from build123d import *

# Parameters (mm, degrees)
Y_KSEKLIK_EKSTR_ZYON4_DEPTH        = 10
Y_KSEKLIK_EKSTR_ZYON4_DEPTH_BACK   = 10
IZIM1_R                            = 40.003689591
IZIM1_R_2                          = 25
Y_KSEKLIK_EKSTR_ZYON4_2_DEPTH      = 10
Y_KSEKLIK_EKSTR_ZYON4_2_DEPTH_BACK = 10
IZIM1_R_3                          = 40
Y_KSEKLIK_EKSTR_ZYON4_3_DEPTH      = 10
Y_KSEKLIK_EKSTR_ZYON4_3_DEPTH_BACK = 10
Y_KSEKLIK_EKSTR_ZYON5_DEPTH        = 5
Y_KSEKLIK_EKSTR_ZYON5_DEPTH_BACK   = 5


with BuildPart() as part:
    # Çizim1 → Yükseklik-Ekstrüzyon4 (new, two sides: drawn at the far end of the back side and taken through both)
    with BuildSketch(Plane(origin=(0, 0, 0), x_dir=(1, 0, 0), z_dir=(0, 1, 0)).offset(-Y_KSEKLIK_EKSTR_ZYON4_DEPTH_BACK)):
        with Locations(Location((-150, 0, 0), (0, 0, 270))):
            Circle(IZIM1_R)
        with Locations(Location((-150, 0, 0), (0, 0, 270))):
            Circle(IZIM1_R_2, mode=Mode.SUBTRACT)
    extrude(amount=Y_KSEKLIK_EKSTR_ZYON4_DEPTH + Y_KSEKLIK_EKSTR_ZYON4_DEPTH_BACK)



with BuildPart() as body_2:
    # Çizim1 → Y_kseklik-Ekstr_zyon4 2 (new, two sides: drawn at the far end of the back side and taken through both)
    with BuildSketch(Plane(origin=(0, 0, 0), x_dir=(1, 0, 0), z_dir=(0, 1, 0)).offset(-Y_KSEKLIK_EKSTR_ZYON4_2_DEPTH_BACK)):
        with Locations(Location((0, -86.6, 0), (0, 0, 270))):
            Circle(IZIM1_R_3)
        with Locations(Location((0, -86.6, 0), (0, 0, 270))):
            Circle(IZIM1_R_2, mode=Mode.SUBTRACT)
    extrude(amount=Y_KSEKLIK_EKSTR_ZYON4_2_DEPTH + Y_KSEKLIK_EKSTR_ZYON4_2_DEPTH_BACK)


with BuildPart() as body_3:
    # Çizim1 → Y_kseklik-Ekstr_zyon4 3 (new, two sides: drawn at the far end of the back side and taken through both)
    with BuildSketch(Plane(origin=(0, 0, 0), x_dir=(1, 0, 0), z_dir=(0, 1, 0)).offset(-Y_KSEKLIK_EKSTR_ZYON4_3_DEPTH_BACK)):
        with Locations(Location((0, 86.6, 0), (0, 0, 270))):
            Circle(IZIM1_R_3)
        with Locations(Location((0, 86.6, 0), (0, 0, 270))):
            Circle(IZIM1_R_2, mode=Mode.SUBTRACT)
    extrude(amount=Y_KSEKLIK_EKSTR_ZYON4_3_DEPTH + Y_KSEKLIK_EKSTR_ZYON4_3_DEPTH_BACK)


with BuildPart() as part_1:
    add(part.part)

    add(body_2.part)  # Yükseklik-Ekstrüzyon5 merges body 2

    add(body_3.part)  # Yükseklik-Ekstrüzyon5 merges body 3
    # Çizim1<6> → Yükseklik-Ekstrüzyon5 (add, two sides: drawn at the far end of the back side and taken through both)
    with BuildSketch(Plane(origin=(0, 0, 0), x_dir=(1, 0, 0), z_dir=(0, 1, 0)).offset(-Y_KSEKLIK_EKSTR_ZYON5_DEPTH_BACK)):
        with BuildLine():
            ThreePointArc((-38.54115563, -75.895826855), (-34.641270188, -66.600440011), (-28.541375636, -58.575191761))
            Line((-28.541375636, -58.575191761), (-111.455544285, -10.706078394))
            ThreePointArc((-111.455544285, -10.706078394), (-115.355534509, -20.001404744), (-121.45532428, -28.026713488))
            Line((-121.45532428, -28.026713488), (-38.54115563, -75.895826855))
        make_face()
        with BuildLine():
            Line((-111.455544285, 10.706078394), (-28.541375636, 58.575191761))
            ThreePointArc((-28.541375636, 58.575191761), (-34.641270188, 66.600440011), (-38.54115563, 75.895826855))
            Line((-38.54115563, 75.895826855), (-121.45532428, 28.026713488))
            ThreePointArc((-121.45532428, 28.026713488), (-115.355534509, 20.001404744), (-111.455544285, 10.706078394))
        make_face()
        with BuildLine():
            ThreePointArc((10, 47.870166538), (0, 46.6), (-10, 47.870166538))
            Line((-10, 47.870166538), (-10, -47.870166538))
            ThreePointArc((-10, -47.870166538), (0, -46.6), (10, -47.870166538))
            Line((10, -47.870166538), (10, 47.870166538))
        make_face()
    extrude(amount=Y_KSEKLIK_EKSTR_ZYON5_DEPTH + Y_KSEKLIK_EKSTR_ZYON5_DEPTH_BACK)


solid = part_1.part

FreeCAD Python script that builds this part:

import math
import FreeCAD as App
import Part
import Sketcher

doc = App.newDocument("Part")
body = doc.addObject("PartDesign::Body", "Body")

# Sketch on XZ plane
sketch1 = doc.addObject("Sketcher::SketchObject", "Sketch")
body.addObject(sketch1)
sketch1.AttachmentSupport = (doc.XZ_Plane, [""])
sketch1.MapMode = "FlatFace"
sketch1.addGeometry([
    Part.Circle(App.Vector(-150, 0, 0), App.Vector(0, 0, 1), 40),
    Part.Circle(App.Vector(-150, 0, 0), App.Vector(0, 0, 1), 25),
], False)
sketch1.addConstraint([
    Sketcher.Constraint("Coincident", 1, 3, 0, 3),
    Sketcher.Constraint("PointOnObject", 0, 3, -1),
    Sketcher.Constraint("Diameter", 1, 50.0),
    Sketcher.Constraint("DistanceX", 0, 3, -1, 1, 150.0),
    Sketcher.Constraint("Diameter", 0, 80.007379),
])
pad1 = doc.addObject("PartDesign::Pad", "Pad")
body.addObject(pad1)
pad1.Profile = sketch1
pad1.Type = "TwoLengths"
pad1.Length = 10
pad1.Length2 = 10
pad1.Reversed = True
body2 = doc.addObject("PartDesign::Body", "Body001")

# Sketch on XZ plane
sketch2 = doc.addObject("Sketcher::SketchObject", "Sketch001")
body2.addObject(sketch2)
sketch2.AttachmentSupport = (doc.getObject("XZ_Plane001"), [""])
sketch2.MapMode = "FlatFace"
sketch2.addGeometry([
    Part.Circle(App.Vector(0, 87, 0), App.Vector(0, 0, 1), 40),
    Part.Circle(App.Vector(0, 87, 0), App.Vector(0, 0, 1), 25),
], False)
sketch2.addConstraint([
    Sketcher.Constraint("Coincident", 1, 3, 0, 3),
    Sketcher.Constraint("PointOnObject", 0, 3, -2),
    Sketcher.Constraint("Diameter", 0, 80.0),
    Sketcher.Constraint("Diameter", 1, 50.0),
    Sketcher.Constraint("DistanceY", -1, 1, 0, 3, 86.6),
])
pad2 = doc.addObject("PartDesign::Pad", "Pad001")
body2.addObject(pad2)
pad2.Profile = sketch2
pad2.Type = "TwoLengths"
pad2.Length = 10
pad2.Length2 = 10
pad2.Reversed = True
body3 = doc.addObject("PartDesign::Body", "Body002")

# Sketch on XZ plane
sketch3 = doc.addObject("Sketcher::SketchObject", "Sketch002")
body3.addObject(sketch3)
sketch3.AttachmentSupport = (doc.getObject("XZ_Plane002"), [""])
sketch3.MapMode = "FlatFace"
sketch3.addGeometry([
    Part.Circle(App.Vector(0, -87, 0), App.Vector(0, 0, 1), 40),
    Part.Circle(App.Vector(0, -87, 0), App.Vector(0, 0, 1), 25),
], False)
sketch3.addConstraint([
    Sketcher.Constraint("Coincident", 1, 3, 0, 3),
    Sketcher.Constraint("PointOnObject", 0, 3, -2),
    Sketcher.Constraint("Diameter", 0, 80.0),
    Sketcher.Constraint("Diameter", 1, 50.0),
    Sketcher.Constraint("DistanceY", 0, 3, -1, 1, 86.6),
])
pad3 = doc.addObject("PartDesign::Pad", "Pad002")
body3.addObject(pad3)
pad3.Profile = sketch3
pad3.Type = "TwoLengths"
pad3.Length = 10
pad3.Length2 = 10
pad3.Reversed = True
body.AllowCompound = True
doc.recompute()

boolean = doc.addObject("PartDesign::Boolean", "Boolean")
body.addObject(boolean)
boolean.Type = "Fuse"
boolean.addObjects([body2])
doc.recompute()

boolean2 = doc.addObject("PartDesign::Boolean", "Boolean001")
body.addObject(boolean2)
boolean2.Type = "Fuse"
boolean2.addObjects([body3])

# Sketch on XZ plane
sketch4 = doc.addObject("Sketcher::SketchObject", "Sketch003")
body.addObject(sketch4)
sketch4.AttachmentSupport = (doc.XZ_Plane, [""])
sketch4.MapMode = "FlatFace"
sketch4.addGeometry([
    Part.ArcOfCircle(Part.Circle(App.Vector(0, 87, 0), App.Vector(0, 0, 1), 40), math.radians(-164), math.radians(-136)),  # 0
    Part.LineSegment(App.Vector(-29, 59, 0), App.Vector(-111, 11, 0)),  # 1
    Part.ArcOfCircle(Part.Circle(App.Vector(-150, 0, 0), App.Vector(0, 0, 1), 40), math.radians(16), math.radians(44)),  # 2
    Part.LineSegment(App.Vector(-121, 28, 0), App.Vector(-39, 76, 0)),  # 3
    Part.LineSegment(App.Vector(-111, -11, 0), App.Vector(-29, -59, 0)),  # 4
    Part.ArcOfCircle(Part.Circle(App.Vector(0, -87, 0), App.Vector(0, 0, 1), 40), math.radians(136), math.radians(164)),  # 5
    Part.LineSegment(App.Vector(-39, -76, 0), App.Vector(-121, -28, 0)),  # 6
    Part.ArcOfCircle(Part.Circle(App.Vector(-150, 0, 0), App.Vector(0, 0, 1), 40), math.radians(-44), math.radians(-16)),  # 7
    Part.ArcOfCircle(Part.Circle(App.Vector(0, -87, 0), App.Vector(0, 0, 1), 40), math.radians(76), math.radians(104)),  # 8
    Part.LineSegment(App.Vector(-10, -48, 0), App.Vector(-10, 48, 0)),  # 9
    Part.ArcOfCircle(Part.Circle(App.Vector(0, 87, 0), App.Vector(0, 0, 1), 40), math.radians(-104), math.radians(-76)),  # 10
    Part.LineSegment(App.Vector(10, 48, 0), App.Vector(10, -48, 0)),  # 11
], False)
sketch4.addConstraint([
    Sketcher.Constraint("Coincident", 0, 2, 1, 1),
    Sketcher.Constraint("Coincident", 1, 2, 2, 1),
    Sketcher.Constraint("Coincident", 2, 2, 3, 1),
    Sketcher.Constraint("Coincident", 3, 2, 0, 1),
    Sketcher.Constraint("Coincident", 4, 2, 5, 1),
    Sketcher.Constraint("Coincident", 5, 2, 6, 1),
    Sketcher.Constraint("Coincident", 6, 2, 7, 1),
    Sketcher.Constraint("Coincident", 7, 2, 4, 1),
    Sketcher.Constraint("Coincident", 8, 2, 9, 1),
    Sketcher.Constraint("Coincident", 9, 2, 10, 1),
    Sketcher.Constraint("Coincident", 10, 2, 11, 1),
    Sketcher.Constraint("Coincident", 11, 2, 8, 1),
    Sketcher.Constraint("Vertical", 9),
    Sketcher.Constraint("Vertical", 11),
    Sketcher.Constraint("Coincident", 7, 3, 2, 3),
    Sketcher.Constraint("Coincident", 8, 3, 5, 3),
    Sketcher.Constraint("Coincident", 10, 3, 0, 3),
    Sketcher.Constraint("Equal", 0, 5),
    Sketcher.Constraint("Equal", 2, 7),
    Sketcher.Constraint("Equal", 5, 8),
    Sketcher.Constraint("Equal", 8, 10),
    Sketcher.Constraint("Symmetric", 0, 3, 5, 3, -1, 1),
    Sketcher.Constraint("Symmetric", 9, 2, 10, 2, -2),
    Sketcher.Constraint("Symmetric", 2, 2, 6, 2, -1),
    Sketcher.Constraint("Parallel", 1, 3),
    Sketcher.Constraint("Parallel", 4, 6),
    Sketcher.Constraint("Vertical", 0, 2, 4, 2),
    Sketcher.Constraint("Vertical", 3, 2, 5, 2),
    Sketcher.Constraint("Equal", 1, 3),
    Sketcher.Constraint("Radius", 0, 40.0),
    Sketcher.Constraint("DistanceX", 2, 3, -1, 1, 150.0),
    Sketcher.Constraint("DistanceX", 8, 2, -1, 1, 10.0),
    Sketcher.Constraint("DistanceY", -1, 1, 0, 3, 86.6),
    Sketcher.Constraint("Radius", 2, 40.00369),
    Sketcher.Constraint("DistanceY", -1, 1, 0, 2, 58.575192),
    Sketcher.Constraint("DistanceY", -1, 1, 1, 2, 10.706078),
])
pad4 = doc.addObject("PartDesign::Pad", "Pad003")
body.addObject(pad4)
pad4.Profile = sketch4
pad4.Type = "TwoLengths"
pad4.Length = 5
pad4.Length2 = 5
pad4.Reversed = True

doc.recompute()
